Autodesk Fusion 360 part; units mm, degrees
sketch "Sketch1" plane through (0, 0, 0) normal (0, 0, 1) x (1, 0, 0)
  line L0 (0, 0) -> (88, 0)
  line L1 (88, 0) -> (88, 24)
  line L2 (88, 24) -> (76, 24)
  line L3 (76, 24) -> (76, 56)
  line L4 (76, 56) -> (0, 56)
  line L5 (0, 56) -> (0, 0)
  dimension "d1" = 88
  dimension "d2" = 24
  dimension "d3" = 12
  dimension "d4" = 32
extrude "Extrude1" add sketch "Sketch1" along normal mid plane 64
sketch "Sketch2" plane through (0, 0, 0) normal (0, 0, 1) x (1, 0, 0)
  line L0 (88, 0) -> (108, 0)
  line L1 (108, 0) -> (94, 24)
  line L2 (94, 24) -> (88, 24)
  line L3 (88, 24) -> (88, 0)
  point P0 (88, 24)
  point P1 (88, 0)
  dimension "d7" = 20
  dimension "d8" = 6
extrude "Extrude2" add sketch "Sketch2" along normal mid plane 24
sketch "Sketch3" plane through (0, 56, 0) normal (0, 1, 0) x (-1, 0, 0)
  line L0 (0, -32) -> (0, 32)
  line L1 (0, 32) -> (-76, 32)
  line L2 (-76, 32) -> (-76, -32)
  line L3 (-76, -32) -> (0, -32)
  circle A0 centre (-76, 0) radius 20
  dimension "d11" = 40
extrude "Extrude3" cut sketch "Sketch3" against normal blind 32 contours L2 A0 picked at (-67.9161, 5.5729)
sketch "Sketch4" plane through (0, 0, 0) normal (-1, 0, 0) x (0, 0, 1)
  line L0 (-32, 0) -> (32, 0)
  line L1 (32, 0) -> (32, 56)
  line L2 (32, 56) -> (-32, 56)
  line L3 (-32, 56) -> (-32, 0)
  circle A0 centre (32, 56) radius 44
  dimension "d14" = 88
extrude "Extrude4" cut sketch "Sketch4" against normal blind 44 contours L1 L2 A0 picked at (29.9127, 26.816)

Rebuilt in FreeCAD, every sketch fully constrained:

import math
import FreeCAD as App
import Part
import Sketcher
Q = App.Units.Quantity


def add_polygon(sketch, points):
    """Adds a closed chain of lines whose ends are joined by coincident constraints."""
    first, n = sketch.GeometryCount, len(points)
    for a, b in zip(points, points[1:] + points[:1]):
        sketch.addGeometry(Part.LineSegment(App.Vector(*a, 0), App.Vector(*b, 0)), False)
    for i in range(n):
        sketch.addConstraint(Sketcher.Constraint("Coincident", first + i, 2, first + (i + 1) % n, 1))

doc = App.newDocument("Part")
body = doc.addObject("PartDesign::Body", "Body")

# Sketch on XY plane
sketch1 = doc.addObject("Sketcher::SketchObject", "Sketch")
body.addObject(sketch1)
sketch1.AttachmentSupport = (doc.XY_Plane, [""])
sketch1.MapMode = "FlatFace"
add_polygon(sketch1, [(0, 56), (0, 0), (88, 0), (88, 24), (76, 24), (76, 56)])  # lines 0-5
sketch1.addConstraint([
    Sketcher.Constraint("Vertical", 0),
    Sketcher.Constraint("Horizontal", 1),
    Sketcher.Constraint("Vertical", 2),
    Sketcher.Constraint("Horizontal", 3),
    Sketcher.Constraint("Vertical", 4),
    Sketcher.Constraint("Horizontal", 5),
    Sketcher.Constraint("Coincident", 0, 2, -1, 1),
    Sketcher.Constraint("DistanceX", 1, 1, 1, 2, Q("88 mm")),
    Sketcher.Constraint("DistanceX", 3, 2, 3, 1, Q("12 mm")),
    Sketcher.Constraint("DistanceY", 2, 1, 2, 2, Q("24 mm")),
    Sketcher.Constraint("DistanceY", 4, 1, 4, 2, Q("32 mm")),
])
pad1 = doc.addObject("PartDesign::Pad", "Pad")
body.addObject(pad1)
pad1.Profile = sketch1
pad1.Length = 64
pad1.Midplane = True

# Sketch on XY plane
sketch2 = doc.addObject("Sketcher::SketchObject", "Sketch001")
body.addObject(sketch2)
sketch2.AttachmentSupport = (doc.XY_Plane, [""])
sketch2.MapMode = "FlatFace"
add_polygon(sketch2, [(88, 24), (88, 0), (108, 0), (94, 24)])  # lines 0-3
sketch2.addConstraint([
    Sketcher.Constraint("Vertical", 0),
    Sketcher.Constraint("Horizontal", 1),
    Sketcher.Constraint("Horizontal", 3),
    Sketcher.Constraint("PointOnObject", 0, 2, -1),
    Sketcher.Constraint("DistanceX", 1, 1, 1, 2, Q("20 mm")),
    Sketcher.Constraint("DistanceX", 3, 2, 3, 1, Q("6 mm")),
    Sketcher.Constraint("DistanceY", 0, 2, 0, 1, Q("24 mm")),
    Sketcher.Constraint("DistanceX", -1, 1, 0, 2, Q("88 mm")),
])
pad2 = doc.addObject("PartDesign::Pad", "Pad001")
body.addObject(pad2)
pad2.Profile = sketch2
pad2.Length = 24
pad2.Midplane = True

# Sketch on XZ plane
sketch3 = doc.addObject("Sketcher::SketchObject", "Sketch002")
body.addObject(sketch3)
sketch3.AttachmentSupport = (doc.XZ_Plane, [""])
sketch3.MapMode = "FlatFace"
sketch3.AttachmentOffset = App.Placement(App.Vector(0, 0, -56), App.Rotation())
sketch3.addGeometry([
    Part.LineSegment(App.Vector(76, 20, 0), App.Vector(76, -20, 0)),
    Part.ArcOfCircle(Part.Circle(App.Vector(76, 0, 0), App.Vector(0, 0, 1), 20), math.radians(90), math.radians(270)),
], False)
sketch3.addConstraint([
    Sketcher.Constraint("Coincident", 0, 1, 1, 1),
    Sketcher.Constraint("Coincident", 1, 2, 0, 2),
    Sketcher.Constraint("Vertical", 0),
    Sketcher.Constraint("PointOnObject", 1, 3, -1),
    Sketcher.Constraint("Vertical", 1, 3, 0, 1),
    Sketcher.Constraint("Radius", 1, Q("20 mm")),
    Sketcher.Constraint("DistanceX", -1, 1, 1, 3, Q("76 mm")),
])
pocket1 = doc.addObject("PartDesign::Pocket", "Pocket")
body.addObject(pocket1)
pocket1.Profile = sketch3
pocket1.Length = 32
pocket1.Reversed = True

# Sketch on YZ plane
sketch4 = doc.addObject("Sketcher::SketchObject", "Sketch003")
body.addObject(sketch4)
sketch4.AttachmentSupport = (doc.YZ_Plane, [""])
sketch4.MapMode = "FlatFace"
sketch4.addGeometry([
    Part.ArcOfCircle(Part.Circle(App.Vector(56, 32, 0), App.Vector(0, 0, 1), 44), math.radians(180), math.radians(270)),
    Part.LineSegment(App.Vector(12, 32, 0), App.Vector(56, 32, 0)),
    Part.LineSegment(App.Vector(56, 32, 0), App.Vector(56, -12, 0)),
], False)
sketch4.addConstraint([
    Sketcher.Constraint("Coincident", 0, 1, 1, 1),
    Sketcher.Constraint("Coincident", 1, 2, 2, 1),
    Sketcher.Constraint("Coincident", 2, 2, 0, 2),
    Sketcher.Constraint("Horizontal", 1),
    Sketcher.Constraint("Vertical", 2),
    Sketcher.Constraint("Coincident", 1, 2, 0, 3),
    Sketcher.Constraint("Radius", 0, Q("44 mm")),
    Sketcher.Constraint("DistanceX", -1, 1, 0, 3, Q("56 mm")),
    Sketcher.Constraint("DistanceY", -1, 1, 0, 3, Q("32 mm")),
])
pocket2 = doc.addObject("PartDesign::Pocket", "Pocket001")
body.addObject(pocket2)
pocket2.Profile = sketch4
pocket2.Length = 44
pocket2.Reversed = True

doc.recompute()
